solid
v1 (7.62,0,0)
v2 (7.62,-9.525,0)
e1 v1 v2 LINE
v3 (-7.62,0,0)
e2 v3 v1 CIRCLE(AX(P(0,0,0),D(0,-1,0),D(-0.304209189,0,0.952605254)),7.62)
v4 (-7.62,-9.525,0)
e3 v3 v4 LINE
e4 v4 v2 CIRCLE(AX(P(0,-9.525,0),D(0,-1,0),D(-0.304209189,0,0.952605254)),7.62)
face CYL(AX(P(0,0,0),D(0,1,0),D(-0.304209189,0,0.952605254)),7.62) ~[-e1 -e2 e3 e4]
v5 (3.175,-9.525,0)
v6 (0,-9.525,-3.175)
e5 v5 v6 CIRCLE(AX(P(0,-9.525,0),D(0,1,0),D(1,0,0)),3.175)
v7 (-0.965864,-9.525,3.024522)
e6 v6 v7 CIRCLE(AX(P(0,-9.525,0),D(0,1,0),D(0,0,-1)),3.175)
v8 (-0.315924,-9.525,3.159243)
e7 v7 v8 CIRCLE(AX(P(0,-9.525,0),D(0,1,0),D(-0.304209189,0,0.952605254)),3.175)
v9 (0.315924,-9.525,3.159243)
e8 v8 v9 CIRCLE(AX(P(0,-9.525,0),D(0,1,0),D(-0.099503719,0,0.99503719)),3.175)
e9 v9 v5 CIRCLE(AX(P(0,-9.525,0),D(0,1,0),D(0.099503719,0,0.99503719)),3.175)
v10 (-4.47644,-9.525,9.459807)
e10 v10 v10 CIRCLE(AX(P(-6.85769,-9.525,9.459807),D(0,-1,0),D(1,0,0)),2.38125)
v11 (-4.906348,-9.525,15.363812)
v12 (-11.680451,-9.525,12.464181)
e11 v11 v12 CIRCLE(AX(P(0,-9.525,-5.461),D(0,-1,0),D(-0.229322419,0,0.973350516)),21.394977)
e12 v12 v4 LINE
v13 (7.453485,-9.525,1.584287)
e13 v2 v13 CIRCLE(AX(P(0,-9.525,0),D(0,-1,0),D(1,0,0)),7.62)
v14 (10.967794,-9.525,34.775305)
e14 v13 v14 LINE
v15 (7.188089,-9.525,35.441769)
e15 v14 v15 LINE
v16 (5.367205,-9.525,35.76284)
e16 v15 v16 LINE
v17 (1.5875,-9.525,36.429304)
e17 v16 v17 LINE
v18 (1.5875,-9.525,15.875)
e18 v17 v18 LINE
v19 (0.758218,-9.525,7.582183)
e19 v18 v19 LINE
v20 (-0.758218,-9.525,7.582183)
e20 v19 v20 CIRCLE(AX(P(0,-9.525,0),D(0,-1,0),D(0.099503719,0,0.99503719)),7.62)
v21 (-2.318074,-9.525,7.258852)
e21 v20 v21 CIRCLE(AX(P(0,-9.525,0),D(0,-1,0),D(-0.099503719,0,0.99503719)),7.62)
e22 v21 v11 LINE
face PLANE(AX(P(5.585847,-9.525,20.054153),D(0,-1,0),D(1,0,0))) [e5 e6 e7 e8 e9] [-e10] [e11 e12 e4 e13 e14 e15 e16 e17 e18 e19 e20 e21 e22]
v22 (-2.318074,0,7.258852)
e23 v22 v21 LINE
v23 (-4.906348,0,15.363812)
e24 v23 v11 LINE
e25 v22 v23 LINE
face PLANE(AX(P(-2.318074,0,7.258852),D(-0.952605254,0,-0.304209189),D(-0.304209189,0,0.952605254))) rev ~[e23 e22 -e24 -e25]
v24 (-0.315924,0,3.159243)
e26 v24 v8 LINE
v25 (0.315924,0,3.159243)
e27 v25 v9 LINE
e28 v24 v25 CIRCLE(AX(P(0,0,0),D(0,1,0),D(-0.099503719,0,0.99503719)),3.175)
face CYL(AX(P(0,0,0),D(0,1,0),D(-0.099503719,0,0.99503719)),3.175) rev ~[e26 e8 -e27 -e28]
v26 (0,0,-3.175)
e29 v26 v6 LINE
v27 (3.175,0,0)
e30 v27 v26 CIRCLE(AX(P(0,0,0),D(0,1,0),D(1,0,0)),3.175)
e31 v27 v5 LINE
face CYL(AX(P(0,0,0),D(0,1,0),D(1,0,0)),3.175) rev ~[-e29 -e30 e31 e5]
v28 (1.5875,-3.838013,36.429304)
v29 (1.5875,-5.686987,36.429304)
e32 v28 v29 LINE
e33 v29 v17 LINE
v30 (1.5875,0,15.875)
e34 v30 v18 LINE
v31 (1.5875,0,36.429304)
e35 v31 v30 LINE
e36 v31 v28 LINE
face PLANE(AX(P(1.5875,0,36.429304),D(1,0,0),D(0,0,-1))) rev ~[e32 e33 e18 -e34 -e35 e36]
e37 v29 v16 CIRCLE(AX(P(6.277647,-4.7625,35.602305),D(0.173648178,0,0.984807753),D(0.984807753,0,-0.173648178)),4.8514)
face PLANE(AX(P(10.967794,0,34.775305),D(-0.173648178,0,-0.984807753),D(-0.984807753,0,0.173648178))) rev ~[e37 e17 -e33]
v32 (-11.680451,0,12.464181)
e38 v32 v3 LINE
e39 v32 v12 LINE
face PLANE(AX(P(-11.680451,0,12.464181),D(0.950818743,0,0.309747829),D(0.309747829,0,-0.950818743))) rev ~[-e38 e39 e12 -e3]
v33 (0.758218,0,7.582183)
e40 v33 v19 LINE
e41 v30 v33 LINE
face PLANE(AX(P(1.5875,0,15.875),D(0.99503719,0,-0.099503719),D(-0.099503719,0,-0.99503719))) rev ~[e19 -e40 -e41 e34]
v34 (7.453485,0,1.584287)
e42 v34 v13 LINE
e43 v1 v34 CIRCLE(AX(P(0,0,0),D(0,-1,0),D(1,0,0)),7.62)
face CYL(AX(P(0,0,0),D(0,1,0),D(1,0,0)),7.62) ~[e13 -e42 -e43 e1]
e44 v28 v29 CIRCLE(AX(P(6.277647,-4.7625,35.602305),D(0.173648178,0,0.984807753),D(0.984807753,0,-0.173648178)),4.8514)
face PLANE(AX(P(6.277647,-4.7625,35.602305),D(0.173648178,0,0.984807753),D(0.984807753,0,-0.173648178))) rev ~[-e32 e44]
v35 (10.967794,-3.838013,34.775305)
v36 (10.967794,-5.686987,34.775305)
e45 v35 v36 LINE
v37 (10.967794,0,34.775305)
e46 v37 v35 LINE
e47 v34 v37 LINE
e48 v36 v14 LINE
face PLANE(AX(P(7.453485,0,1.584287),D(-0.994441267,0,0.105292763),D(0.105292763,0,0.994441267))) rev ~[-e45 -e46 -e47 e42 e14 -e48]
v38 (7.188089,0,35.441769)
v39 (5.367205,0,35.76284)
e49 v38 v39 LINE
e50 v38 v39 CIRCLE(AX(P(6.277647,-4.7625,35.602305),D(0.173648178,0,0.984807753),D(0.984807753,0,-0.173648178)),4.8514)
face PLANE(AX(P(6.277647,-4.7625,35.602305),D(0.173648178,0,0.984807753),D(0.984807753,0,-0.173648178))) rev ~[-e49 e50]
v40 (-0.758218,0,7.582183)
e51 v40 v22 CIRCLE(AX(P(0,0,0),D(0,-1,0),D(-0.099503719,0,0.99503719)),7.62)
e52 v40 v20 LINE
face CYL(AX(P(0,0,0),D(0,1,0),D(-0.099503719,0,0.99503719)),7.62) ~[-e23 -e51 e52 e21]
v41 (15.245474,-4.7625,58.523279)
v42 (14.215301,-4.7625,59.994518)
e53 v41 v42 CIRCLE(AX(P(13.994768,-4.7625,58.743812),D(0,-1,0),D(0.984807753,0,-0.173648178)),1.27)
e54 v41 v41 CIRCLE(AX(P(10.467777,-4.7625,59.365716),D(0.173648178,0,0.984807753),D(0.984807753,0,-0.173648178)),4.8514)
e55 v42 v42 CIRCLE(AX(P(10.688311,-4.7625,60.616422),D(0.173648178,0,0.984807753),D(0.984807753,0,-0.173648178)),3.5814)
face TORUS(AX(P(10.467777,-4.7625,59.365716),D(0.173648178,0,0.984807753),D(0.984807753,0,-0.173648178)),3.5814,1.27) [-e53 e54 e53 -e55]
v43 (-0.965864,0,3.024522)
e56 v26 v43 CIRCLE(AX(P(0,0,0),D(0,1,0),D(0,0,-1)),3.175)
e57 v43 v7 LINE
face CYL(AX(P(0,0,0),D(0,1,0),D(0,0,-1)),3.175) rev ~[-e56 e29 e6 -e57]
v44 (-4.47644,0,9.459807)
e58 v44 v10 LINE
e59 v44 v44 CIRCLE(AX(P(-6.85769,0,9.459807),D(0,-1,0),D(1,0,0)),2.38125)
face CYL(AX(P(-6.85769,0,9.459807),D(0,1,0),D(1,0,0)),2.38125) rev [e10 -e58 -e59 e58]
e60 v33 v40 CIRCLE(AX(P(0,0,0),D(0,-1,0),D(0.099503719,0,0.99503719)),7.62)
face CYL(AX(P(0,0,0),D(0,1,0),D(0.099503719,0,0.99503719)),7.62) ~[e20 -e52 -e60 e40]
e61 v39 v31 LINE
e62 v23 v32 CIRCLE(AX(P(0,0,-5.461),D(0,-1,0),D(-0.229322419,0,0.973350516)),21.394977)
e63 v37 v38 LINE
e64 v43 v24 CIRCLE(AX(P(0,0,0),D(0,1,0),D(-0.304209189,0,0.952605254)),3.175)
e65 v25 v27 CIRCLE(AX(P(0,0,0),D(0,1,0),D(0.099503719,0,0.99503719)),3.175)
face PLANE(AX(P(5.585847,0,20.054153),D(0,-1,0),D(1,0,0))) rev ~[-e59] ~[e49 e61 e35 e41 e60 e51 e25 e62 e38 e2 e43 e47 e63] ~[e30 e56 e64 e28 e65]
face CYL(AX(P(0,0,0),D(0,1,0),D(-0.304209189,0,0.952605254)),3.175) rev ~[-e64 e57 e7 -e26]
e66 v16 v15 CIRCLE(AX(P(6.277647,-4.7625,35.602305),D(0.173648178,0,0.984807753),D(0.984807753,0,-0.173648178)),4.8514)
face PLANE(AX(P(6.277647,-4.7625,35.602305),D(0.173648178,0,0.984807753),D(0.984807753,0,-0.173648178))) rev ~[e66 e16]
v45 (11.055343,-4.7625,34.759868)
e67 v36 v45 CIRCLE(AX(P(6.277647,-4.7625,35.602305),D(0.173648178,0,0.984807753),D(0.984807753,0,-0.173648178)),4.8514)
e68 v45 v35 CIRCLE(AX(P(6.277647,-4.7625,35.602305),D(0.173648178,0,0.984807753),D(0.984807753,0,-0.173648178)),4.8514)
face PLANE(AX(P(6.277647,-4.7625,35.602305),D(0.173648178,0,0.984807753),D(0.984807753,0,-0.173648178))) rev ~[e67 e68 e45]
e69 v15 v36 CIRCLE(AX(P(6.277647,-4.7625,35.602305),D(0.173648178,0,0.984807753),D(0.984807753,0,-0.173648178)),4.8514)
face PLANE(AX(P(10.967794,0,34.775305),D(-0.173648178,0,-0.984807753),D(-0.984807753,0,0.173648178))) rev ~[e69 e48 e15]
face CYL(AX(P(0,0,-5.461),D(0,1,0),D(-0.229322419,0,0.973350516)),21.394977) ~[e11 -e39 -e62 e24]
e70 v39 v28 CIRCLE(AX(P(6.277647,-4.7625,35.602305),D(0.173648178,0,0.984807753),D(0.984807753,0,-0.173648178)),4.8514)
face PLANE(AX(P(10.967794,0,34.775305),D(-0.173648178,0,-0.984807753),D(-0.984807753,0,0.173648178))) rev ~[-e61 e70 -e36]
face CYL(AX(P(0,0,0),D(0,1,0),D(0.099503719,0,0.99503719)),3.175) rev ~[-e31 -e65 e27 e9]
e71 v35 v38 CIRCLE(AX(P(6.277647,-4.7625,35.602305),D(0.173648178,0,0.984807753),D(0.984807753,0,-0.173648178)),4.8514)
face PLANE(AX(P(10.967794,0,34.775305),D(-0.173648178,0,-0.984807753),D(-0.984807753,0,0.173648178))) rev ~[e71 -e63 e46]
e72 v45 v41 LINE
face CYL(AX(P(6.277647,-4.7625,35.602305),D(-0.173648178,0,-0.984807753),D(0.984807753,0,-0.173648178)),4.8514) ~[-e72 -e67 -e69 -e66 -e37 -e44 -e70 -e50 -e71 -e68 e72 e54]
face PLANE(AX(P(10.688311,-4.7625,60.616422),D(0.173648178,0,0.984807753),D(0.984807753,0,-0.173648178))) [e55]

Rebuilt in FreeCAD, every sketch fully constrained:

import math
import FreeCAD as App
import Part
import Sketcher

V = App.Vector
Q = App.Units.Quantity


def edges_at(feature, points):
    """Names of the edges that pass closest to the given points."""
    edges = feature.Shape.Edges
    near = lambda p: min(range(len(edges)), key=lambda i: edges[i].distToShape(Part.Vertex(*p))[0])
    return sorted({f"Edge{near(p) + 1}" for p in points})

doc = App.newDocument("Part")
params = doc.addObject("Spreadsheet::Sheet", "Params")
for row, (alias, value) in enumerate([
    ("sketch1_radius", "0.3 in"),
    ("sketch1_diameter", "0.1875 in"),
    ("sketch1_radius2", "0.125 in"),
    ("sketch1_length", "0.375 in"),
    ("pad1_length", "0.375 in"),
    ("sketch2_diameter", "0.382 in"),
    ("pad2_length", "1 in"),
    ("fillet_radius", "0.05 in"),
    ("sketch3_diameter", "0.1875 in"),
    ("pocket1_length", "0.38 in"),
], start=1):
    params.set(f"A{row}", alias)
    params.set(f"B{row}", "=" + value)
    params.setAlias(f"B{row}", alias)

body = doc.addObject("PartDesign::Body", "Body")

sketch1 = body.newObject("Sketcher::SketchObject", "Sketch")
sketch1.AttachmentSupport = (doc.getObject("XZ_Plane"), [""])
sketch1.MapMode = "FlatFace"
sketch1.addGeometry(Part.LineSegment(V(1.5875, 15.875, 0), V(0.758218, 7.582183, 0)), False)
sketch1.addGeometry(Part.ArcOfCircle(Part.Circle(V(0, 0, 0), V(0, 0, 1), 7.62), math.radians(84.289407), math.radians(95.710593)), False)
sketch1.addGeometry(Part.ArcOfCircle(Part.Circle(V(0, 0, 0), V(0, 0, 1), 7.62), math.radians(95.710593), math.radians(107.710593)), False)
sketch1.addGeometry(Part.LineSegment(V(-2.318074, 7.258852, 0), V(-4.906348, 15.363812, 0)), False)
sketch1.addGeometry(Part.ArcOfCircle(Part.Circle(V(0, -5.461, 0), V(0, 0, 1), 21.394977), math.radians(103.257183), math.radians(123.08917)), False)
sketch1.addGeometry(Part.LineSegment(V(-11.680451, 12.464181, 0), V(-7.62, 0, 0)), False)
sketch1.addGeometry(Part.ArcOfCircle(Part.Circle(V(0, 0, 0), V(0, 0, 1), 7.62), math.radians(180), math.radians(360)), False)
sketch1.addGeometry(Part.ArcOfCircle(Part.Circle(V(0, 0, 0), V(0, 0, 1), 7.62), math.radians(0), math.radians(12)), False)
sketch1.addGeometry(Part.LineSegment(V(7.453485, 1.584287, 0), V(10.967794, 34.775305, 0)), False)
sketch1.addGeometry(Part.LineSegment(V(10.967794, 34.775305, 0), V(1.5875, 36.429304, 0)), False)
sketch1.addGeometry(Part.LineSegment(V(1.5875, 36.429304, 0), V(1.5875, 15.875, 0)), False)
sketch1.addGeometry(Part.ArcOfCircle(Part.Circle(V(0, 0, 0), V(0, 0, 1), 3.175), math.radians(84.289407), math.radians(95.710593)), False)
sketch1.addGeometry(Part.ArcOfCircle(Part.Circle(V(0, 0, 0), V(0, 0, 1), 3.175), math.radians(0), math.radians(84.289407)), False)
sketch1.addGeometry(Part.ArcOfCircle(Part.Circle(V(0, 0, 0), V(0, 0, 1), 3.175), math.radians(-90), math.radians(0)), False)
sketch1.addGeometry(Part.ArcOfCircle(Part.Circle(V(0, 0, 0), V(0, 0, 1), 3.175), math.radians(107.710593), math.radians(270)), False)
sketch1.addGeometry(Part.ArcOfCircle(Part.Circle(V(0, 0, 0), V(0, 0, 1), 3.175), math.radians(95.710593), math.radians(107.710593)), False)
sketch1.addGeometry(Part.Circle(V(-6.85769, 9.459807, 0), V(0, 0, 1), 2.38125), False)
sketch1.addConstraint(Sketcher.Constraint("Coincident", 0, 2, 1, 1))
sketch1.addConstraint(Sketcher.Constraint("Tangent", 1, 2, 2, 1))
sketch1.addConstraint(Sketcher.Constraint("Coincident", 2, 2, 3, 1))
sketch1.addConstraint(Sketcher.Constraint("Coincident", 3, 2, 4, 1))
sketch1.addConstraint(Sketcher.Constraint("Coincident", 4, 2, 5, 1))
sketch1.addConstraint(Sketcher.Constraint("Coincident", 5, 2, 6, 1))
sketch1.addConstraint(Sketcher.Constraint("Tangent", 6, 2, 7, 1))
sketch1.addConstraint(Sketcher.Constraint("Coincident", 7, 2, 8, 1))
sketch1.addConstraint(Sketcher.Constraint("Coincident", 8, 2, 9, 1))
sketch1.addConstraint(Sketcher.Constraint("Coincident", 9, 2, 10, 1))
sketch1.addConstraint(Sketcher.Constraint("Coincident", 10, 2, 0, 1))
sketch1.addConstraint(Sketcher.Constraint("Tangent", 11, 1, 12, 2))
sketch1.addConstraint(Sketcher.Constraint("Tangent", 12, 1, 13, 2))
sketch1.addConstraint(Sketcher.Constraint("Tangent", 13, 1, 14, 2))
sketch1.addConstraint(Sketcher.Constraint("Tangent", 14, 1, 15, 2))
sketch1.addConstraint(Sketcher.Constraint("Tangent", 15, 1, 11, 2))
sketch1.addConstraint(Sketcher.Constraint("Vertical", 10))
sketch1.addConstraint(Sketcher.Constraint("Coincident", 1, 3, -1, 1))
sketch1.addConstraint(Sketcher.Constraint("Coincident", 6, 3, -1, 1))
sketch1.addConstraint(Sketcher.Constraint("Coincident", 11, 3, -1, 1))
sketch1.addConstraint(Sketcher.Constraint("Coincident", 13, 3, -1, 1))
sketch1.addConstraint(Sketcher.Constraint("Equal", 1, 2))
sketch1.addConstraint(Sketcher.Constraint("Equal", 2, 6))
sketch1.addConstraint(Sketcher.Constraint("Equal", 6, 7))
sketch1.addConstraint(Sketcher.Constraint("PointOnObject", 4, 3, -2))
sketch1.addConstraint(Sketcher.Constraint("PointOnObject", 5, 2, -1))
sketch1.addConstraint(Sketcher.Constraint("PointOnObject", 6, 2, -1))
sketch1.addConstraint(Sketcher.Constraint("PointOnObject", 12, 1, -1))
sketch1.addConstraint(Sketcher.Constraint("PointOnObject", 13, 1, -2))
sketch1.addConstraint(Sketcher.Constraint("Horizontal", 0, 2, 1, 2))
sketch1.addConstraint(Sketcher.Constraint("Horizontal", 11, 1, 15, 1))
sketch1.addConstraint(Sketcher.Constraint("Radius", 1, Q("0.3 in")))
sketch1.addConstraint(Sketcher.Constraint("Diameter", 16, Q("0.1875 in")))
sketch1.addConstraint(Sketcher.Constraint("Angle", 9, Q("170 deg")))
sketch1.addConstraint(Sketcher.Constraint("Radius", 11, Q("0.125 in")))
sketch1.addConstraint(Sketcher.Constraint("DistanceY", 4, 3, 13, 1, Q("0.09 in")))
sketch1.addConstraint(Sketcher.Constraint("Distance", 9, Q("0.375 in")))
sketch1.addConstraint(Sketcher.Constraint("DistanceX", -1, 1, 9, 2, Q("0.0625 in")))
sketch1.addConstraint(Sketcher.Constraint("DistanceY", -1, 1, 10, 2, Q("0.625 in")))
sketch1.addConstraint(Sketcher.Constraint("Radius", 4, 21.394977))
sketch1.addConstraint(Sketcher.Constraint("DistanceY", 16, 3, 8, 2, 25.315499))
sketch1.addConstraint(Sketcher.Constraint("Distance", 8, 33.37655))
sketch1.addConstraint(Sketcher.Constraint("DistanceY", 10, 2, 10, 1, 20.554304))
sketch1.addConstraint(Sketcher.Constraint("DistanceX", 16, 3, -1, 1, 6.85769))
sketch1.addConstraint(Sketcher.Constraint("DistanceX", -1, 1, 0, 2, 0.758218))
sketch1.addConstraint(Sketcher.Constraint("DistanceX", 4, 2, -1, 1, 11.680451))
sketch1.addConstraint(Sketcher.Constraint("DistanceY", -1, 1, 14, 1, 3.024522))
sketch1.addConstraint(Sketcher.Constraint("DistanceY", 2, 2, 1, 2, 0.323331))
sketch1.addConstraint(Sketcher.Constraint("DistanceY", 2, 2, 3, 2, 8.10496))
sketch1.addConstraint(Sketcher.Constraint("DistanceX", 14, 1, 11, 1, 1.281788))
sketch1.setExpression("Constraints[31]", "Params.sketch1_radius")
sketch1.setExpression("Constraints[32]", "Params.sketch1_diameter")
sketch1.setExpression("Constraints[34]", "Params.sketch1_radius2")
sketch1.setExpression("Constraints[36]", "Params.sketch1_length")
pad1 = body.newObject("PartDesign::Pad", "Pad")
pad1.Profile = sketch1
pad1.setExpression("Length", "Params.pad1_length")

sketch2 = body.newObject("Sketcher::SketchObject", "Sketch001")
sketch2.Placement = App.Placement(V(6.277647, 0, 35.602305), App.Rotation(V(0.984807753, 0, -0.173648178), V(0, 1, 0), V(0.173648178, 0, 0.984807753), "ZXY"))
sketch2.addGeometry(Part.Circle(V(0, -4.7625, 0), V(0, 0, 1), 4.8514), False)
sketch2.addConstraint(Sketcher.Constraint("PointOnObject", 0, 3, -2))
sketch2.addConstraint(Sketcher.Constraint("Diameter", 0, Q("0.382 in")))
sketch2.addConstraint(Sketcher.Constraint("DistanceY", 0, 3, -1, 1, Q("0.1875 in")))
sketch2.setExpression("Constraints[1]", "Params.sketch2_diameter")
pad2 = body.newObject("PartDesign::Pad", "Pad001")
pad2.Profile = sketch2
pad2.setExpression("Length", "Params.pad2_length")
doc.recompute()

fillet = body.newObject("PartDesign::Fillet", "Fillet")
fillet.Base = (pad2, edges_at(pad2, [(5.911, -4.763, 61.459)]))
fillet.setExpression("Radius", "Params.fillet_radius")

sketch3 = body.newObject("Sketcher::SketchObject", "Sketch002")
sketch3.AttachmentSupport = (doc.getObject("XZ_Plane"), [""])
sketch3.MapMode = "FlatFace"
sketch3.addGeometry(Part.Circle(V(-6.85769, 9.459807, 0), V(0, 0, 1), 2.38125), False)
sketch3.addConstraint(Sketcher.Constraint("Diameter", 0, Q("0.1875 in")))
sketch3.addConstraint(Sketcher.Constraint("DistanceX", 0, 3, -1, 1, 6.85769))
sketch3.addConstraint(Sketcher.Constraint("DistanceY", -1, 1, 0, 3, 9.459807))
sketch3.setExpression("Constraints[0]", "Params.sketch3_diameter")
pocket1 = body.newObject("PartDesign::Pocket", "Pocket")
pocket1.Profile = sketch3
pocket1.setExpression("Length", "Params.pocket1_length")

doc.recompute()
